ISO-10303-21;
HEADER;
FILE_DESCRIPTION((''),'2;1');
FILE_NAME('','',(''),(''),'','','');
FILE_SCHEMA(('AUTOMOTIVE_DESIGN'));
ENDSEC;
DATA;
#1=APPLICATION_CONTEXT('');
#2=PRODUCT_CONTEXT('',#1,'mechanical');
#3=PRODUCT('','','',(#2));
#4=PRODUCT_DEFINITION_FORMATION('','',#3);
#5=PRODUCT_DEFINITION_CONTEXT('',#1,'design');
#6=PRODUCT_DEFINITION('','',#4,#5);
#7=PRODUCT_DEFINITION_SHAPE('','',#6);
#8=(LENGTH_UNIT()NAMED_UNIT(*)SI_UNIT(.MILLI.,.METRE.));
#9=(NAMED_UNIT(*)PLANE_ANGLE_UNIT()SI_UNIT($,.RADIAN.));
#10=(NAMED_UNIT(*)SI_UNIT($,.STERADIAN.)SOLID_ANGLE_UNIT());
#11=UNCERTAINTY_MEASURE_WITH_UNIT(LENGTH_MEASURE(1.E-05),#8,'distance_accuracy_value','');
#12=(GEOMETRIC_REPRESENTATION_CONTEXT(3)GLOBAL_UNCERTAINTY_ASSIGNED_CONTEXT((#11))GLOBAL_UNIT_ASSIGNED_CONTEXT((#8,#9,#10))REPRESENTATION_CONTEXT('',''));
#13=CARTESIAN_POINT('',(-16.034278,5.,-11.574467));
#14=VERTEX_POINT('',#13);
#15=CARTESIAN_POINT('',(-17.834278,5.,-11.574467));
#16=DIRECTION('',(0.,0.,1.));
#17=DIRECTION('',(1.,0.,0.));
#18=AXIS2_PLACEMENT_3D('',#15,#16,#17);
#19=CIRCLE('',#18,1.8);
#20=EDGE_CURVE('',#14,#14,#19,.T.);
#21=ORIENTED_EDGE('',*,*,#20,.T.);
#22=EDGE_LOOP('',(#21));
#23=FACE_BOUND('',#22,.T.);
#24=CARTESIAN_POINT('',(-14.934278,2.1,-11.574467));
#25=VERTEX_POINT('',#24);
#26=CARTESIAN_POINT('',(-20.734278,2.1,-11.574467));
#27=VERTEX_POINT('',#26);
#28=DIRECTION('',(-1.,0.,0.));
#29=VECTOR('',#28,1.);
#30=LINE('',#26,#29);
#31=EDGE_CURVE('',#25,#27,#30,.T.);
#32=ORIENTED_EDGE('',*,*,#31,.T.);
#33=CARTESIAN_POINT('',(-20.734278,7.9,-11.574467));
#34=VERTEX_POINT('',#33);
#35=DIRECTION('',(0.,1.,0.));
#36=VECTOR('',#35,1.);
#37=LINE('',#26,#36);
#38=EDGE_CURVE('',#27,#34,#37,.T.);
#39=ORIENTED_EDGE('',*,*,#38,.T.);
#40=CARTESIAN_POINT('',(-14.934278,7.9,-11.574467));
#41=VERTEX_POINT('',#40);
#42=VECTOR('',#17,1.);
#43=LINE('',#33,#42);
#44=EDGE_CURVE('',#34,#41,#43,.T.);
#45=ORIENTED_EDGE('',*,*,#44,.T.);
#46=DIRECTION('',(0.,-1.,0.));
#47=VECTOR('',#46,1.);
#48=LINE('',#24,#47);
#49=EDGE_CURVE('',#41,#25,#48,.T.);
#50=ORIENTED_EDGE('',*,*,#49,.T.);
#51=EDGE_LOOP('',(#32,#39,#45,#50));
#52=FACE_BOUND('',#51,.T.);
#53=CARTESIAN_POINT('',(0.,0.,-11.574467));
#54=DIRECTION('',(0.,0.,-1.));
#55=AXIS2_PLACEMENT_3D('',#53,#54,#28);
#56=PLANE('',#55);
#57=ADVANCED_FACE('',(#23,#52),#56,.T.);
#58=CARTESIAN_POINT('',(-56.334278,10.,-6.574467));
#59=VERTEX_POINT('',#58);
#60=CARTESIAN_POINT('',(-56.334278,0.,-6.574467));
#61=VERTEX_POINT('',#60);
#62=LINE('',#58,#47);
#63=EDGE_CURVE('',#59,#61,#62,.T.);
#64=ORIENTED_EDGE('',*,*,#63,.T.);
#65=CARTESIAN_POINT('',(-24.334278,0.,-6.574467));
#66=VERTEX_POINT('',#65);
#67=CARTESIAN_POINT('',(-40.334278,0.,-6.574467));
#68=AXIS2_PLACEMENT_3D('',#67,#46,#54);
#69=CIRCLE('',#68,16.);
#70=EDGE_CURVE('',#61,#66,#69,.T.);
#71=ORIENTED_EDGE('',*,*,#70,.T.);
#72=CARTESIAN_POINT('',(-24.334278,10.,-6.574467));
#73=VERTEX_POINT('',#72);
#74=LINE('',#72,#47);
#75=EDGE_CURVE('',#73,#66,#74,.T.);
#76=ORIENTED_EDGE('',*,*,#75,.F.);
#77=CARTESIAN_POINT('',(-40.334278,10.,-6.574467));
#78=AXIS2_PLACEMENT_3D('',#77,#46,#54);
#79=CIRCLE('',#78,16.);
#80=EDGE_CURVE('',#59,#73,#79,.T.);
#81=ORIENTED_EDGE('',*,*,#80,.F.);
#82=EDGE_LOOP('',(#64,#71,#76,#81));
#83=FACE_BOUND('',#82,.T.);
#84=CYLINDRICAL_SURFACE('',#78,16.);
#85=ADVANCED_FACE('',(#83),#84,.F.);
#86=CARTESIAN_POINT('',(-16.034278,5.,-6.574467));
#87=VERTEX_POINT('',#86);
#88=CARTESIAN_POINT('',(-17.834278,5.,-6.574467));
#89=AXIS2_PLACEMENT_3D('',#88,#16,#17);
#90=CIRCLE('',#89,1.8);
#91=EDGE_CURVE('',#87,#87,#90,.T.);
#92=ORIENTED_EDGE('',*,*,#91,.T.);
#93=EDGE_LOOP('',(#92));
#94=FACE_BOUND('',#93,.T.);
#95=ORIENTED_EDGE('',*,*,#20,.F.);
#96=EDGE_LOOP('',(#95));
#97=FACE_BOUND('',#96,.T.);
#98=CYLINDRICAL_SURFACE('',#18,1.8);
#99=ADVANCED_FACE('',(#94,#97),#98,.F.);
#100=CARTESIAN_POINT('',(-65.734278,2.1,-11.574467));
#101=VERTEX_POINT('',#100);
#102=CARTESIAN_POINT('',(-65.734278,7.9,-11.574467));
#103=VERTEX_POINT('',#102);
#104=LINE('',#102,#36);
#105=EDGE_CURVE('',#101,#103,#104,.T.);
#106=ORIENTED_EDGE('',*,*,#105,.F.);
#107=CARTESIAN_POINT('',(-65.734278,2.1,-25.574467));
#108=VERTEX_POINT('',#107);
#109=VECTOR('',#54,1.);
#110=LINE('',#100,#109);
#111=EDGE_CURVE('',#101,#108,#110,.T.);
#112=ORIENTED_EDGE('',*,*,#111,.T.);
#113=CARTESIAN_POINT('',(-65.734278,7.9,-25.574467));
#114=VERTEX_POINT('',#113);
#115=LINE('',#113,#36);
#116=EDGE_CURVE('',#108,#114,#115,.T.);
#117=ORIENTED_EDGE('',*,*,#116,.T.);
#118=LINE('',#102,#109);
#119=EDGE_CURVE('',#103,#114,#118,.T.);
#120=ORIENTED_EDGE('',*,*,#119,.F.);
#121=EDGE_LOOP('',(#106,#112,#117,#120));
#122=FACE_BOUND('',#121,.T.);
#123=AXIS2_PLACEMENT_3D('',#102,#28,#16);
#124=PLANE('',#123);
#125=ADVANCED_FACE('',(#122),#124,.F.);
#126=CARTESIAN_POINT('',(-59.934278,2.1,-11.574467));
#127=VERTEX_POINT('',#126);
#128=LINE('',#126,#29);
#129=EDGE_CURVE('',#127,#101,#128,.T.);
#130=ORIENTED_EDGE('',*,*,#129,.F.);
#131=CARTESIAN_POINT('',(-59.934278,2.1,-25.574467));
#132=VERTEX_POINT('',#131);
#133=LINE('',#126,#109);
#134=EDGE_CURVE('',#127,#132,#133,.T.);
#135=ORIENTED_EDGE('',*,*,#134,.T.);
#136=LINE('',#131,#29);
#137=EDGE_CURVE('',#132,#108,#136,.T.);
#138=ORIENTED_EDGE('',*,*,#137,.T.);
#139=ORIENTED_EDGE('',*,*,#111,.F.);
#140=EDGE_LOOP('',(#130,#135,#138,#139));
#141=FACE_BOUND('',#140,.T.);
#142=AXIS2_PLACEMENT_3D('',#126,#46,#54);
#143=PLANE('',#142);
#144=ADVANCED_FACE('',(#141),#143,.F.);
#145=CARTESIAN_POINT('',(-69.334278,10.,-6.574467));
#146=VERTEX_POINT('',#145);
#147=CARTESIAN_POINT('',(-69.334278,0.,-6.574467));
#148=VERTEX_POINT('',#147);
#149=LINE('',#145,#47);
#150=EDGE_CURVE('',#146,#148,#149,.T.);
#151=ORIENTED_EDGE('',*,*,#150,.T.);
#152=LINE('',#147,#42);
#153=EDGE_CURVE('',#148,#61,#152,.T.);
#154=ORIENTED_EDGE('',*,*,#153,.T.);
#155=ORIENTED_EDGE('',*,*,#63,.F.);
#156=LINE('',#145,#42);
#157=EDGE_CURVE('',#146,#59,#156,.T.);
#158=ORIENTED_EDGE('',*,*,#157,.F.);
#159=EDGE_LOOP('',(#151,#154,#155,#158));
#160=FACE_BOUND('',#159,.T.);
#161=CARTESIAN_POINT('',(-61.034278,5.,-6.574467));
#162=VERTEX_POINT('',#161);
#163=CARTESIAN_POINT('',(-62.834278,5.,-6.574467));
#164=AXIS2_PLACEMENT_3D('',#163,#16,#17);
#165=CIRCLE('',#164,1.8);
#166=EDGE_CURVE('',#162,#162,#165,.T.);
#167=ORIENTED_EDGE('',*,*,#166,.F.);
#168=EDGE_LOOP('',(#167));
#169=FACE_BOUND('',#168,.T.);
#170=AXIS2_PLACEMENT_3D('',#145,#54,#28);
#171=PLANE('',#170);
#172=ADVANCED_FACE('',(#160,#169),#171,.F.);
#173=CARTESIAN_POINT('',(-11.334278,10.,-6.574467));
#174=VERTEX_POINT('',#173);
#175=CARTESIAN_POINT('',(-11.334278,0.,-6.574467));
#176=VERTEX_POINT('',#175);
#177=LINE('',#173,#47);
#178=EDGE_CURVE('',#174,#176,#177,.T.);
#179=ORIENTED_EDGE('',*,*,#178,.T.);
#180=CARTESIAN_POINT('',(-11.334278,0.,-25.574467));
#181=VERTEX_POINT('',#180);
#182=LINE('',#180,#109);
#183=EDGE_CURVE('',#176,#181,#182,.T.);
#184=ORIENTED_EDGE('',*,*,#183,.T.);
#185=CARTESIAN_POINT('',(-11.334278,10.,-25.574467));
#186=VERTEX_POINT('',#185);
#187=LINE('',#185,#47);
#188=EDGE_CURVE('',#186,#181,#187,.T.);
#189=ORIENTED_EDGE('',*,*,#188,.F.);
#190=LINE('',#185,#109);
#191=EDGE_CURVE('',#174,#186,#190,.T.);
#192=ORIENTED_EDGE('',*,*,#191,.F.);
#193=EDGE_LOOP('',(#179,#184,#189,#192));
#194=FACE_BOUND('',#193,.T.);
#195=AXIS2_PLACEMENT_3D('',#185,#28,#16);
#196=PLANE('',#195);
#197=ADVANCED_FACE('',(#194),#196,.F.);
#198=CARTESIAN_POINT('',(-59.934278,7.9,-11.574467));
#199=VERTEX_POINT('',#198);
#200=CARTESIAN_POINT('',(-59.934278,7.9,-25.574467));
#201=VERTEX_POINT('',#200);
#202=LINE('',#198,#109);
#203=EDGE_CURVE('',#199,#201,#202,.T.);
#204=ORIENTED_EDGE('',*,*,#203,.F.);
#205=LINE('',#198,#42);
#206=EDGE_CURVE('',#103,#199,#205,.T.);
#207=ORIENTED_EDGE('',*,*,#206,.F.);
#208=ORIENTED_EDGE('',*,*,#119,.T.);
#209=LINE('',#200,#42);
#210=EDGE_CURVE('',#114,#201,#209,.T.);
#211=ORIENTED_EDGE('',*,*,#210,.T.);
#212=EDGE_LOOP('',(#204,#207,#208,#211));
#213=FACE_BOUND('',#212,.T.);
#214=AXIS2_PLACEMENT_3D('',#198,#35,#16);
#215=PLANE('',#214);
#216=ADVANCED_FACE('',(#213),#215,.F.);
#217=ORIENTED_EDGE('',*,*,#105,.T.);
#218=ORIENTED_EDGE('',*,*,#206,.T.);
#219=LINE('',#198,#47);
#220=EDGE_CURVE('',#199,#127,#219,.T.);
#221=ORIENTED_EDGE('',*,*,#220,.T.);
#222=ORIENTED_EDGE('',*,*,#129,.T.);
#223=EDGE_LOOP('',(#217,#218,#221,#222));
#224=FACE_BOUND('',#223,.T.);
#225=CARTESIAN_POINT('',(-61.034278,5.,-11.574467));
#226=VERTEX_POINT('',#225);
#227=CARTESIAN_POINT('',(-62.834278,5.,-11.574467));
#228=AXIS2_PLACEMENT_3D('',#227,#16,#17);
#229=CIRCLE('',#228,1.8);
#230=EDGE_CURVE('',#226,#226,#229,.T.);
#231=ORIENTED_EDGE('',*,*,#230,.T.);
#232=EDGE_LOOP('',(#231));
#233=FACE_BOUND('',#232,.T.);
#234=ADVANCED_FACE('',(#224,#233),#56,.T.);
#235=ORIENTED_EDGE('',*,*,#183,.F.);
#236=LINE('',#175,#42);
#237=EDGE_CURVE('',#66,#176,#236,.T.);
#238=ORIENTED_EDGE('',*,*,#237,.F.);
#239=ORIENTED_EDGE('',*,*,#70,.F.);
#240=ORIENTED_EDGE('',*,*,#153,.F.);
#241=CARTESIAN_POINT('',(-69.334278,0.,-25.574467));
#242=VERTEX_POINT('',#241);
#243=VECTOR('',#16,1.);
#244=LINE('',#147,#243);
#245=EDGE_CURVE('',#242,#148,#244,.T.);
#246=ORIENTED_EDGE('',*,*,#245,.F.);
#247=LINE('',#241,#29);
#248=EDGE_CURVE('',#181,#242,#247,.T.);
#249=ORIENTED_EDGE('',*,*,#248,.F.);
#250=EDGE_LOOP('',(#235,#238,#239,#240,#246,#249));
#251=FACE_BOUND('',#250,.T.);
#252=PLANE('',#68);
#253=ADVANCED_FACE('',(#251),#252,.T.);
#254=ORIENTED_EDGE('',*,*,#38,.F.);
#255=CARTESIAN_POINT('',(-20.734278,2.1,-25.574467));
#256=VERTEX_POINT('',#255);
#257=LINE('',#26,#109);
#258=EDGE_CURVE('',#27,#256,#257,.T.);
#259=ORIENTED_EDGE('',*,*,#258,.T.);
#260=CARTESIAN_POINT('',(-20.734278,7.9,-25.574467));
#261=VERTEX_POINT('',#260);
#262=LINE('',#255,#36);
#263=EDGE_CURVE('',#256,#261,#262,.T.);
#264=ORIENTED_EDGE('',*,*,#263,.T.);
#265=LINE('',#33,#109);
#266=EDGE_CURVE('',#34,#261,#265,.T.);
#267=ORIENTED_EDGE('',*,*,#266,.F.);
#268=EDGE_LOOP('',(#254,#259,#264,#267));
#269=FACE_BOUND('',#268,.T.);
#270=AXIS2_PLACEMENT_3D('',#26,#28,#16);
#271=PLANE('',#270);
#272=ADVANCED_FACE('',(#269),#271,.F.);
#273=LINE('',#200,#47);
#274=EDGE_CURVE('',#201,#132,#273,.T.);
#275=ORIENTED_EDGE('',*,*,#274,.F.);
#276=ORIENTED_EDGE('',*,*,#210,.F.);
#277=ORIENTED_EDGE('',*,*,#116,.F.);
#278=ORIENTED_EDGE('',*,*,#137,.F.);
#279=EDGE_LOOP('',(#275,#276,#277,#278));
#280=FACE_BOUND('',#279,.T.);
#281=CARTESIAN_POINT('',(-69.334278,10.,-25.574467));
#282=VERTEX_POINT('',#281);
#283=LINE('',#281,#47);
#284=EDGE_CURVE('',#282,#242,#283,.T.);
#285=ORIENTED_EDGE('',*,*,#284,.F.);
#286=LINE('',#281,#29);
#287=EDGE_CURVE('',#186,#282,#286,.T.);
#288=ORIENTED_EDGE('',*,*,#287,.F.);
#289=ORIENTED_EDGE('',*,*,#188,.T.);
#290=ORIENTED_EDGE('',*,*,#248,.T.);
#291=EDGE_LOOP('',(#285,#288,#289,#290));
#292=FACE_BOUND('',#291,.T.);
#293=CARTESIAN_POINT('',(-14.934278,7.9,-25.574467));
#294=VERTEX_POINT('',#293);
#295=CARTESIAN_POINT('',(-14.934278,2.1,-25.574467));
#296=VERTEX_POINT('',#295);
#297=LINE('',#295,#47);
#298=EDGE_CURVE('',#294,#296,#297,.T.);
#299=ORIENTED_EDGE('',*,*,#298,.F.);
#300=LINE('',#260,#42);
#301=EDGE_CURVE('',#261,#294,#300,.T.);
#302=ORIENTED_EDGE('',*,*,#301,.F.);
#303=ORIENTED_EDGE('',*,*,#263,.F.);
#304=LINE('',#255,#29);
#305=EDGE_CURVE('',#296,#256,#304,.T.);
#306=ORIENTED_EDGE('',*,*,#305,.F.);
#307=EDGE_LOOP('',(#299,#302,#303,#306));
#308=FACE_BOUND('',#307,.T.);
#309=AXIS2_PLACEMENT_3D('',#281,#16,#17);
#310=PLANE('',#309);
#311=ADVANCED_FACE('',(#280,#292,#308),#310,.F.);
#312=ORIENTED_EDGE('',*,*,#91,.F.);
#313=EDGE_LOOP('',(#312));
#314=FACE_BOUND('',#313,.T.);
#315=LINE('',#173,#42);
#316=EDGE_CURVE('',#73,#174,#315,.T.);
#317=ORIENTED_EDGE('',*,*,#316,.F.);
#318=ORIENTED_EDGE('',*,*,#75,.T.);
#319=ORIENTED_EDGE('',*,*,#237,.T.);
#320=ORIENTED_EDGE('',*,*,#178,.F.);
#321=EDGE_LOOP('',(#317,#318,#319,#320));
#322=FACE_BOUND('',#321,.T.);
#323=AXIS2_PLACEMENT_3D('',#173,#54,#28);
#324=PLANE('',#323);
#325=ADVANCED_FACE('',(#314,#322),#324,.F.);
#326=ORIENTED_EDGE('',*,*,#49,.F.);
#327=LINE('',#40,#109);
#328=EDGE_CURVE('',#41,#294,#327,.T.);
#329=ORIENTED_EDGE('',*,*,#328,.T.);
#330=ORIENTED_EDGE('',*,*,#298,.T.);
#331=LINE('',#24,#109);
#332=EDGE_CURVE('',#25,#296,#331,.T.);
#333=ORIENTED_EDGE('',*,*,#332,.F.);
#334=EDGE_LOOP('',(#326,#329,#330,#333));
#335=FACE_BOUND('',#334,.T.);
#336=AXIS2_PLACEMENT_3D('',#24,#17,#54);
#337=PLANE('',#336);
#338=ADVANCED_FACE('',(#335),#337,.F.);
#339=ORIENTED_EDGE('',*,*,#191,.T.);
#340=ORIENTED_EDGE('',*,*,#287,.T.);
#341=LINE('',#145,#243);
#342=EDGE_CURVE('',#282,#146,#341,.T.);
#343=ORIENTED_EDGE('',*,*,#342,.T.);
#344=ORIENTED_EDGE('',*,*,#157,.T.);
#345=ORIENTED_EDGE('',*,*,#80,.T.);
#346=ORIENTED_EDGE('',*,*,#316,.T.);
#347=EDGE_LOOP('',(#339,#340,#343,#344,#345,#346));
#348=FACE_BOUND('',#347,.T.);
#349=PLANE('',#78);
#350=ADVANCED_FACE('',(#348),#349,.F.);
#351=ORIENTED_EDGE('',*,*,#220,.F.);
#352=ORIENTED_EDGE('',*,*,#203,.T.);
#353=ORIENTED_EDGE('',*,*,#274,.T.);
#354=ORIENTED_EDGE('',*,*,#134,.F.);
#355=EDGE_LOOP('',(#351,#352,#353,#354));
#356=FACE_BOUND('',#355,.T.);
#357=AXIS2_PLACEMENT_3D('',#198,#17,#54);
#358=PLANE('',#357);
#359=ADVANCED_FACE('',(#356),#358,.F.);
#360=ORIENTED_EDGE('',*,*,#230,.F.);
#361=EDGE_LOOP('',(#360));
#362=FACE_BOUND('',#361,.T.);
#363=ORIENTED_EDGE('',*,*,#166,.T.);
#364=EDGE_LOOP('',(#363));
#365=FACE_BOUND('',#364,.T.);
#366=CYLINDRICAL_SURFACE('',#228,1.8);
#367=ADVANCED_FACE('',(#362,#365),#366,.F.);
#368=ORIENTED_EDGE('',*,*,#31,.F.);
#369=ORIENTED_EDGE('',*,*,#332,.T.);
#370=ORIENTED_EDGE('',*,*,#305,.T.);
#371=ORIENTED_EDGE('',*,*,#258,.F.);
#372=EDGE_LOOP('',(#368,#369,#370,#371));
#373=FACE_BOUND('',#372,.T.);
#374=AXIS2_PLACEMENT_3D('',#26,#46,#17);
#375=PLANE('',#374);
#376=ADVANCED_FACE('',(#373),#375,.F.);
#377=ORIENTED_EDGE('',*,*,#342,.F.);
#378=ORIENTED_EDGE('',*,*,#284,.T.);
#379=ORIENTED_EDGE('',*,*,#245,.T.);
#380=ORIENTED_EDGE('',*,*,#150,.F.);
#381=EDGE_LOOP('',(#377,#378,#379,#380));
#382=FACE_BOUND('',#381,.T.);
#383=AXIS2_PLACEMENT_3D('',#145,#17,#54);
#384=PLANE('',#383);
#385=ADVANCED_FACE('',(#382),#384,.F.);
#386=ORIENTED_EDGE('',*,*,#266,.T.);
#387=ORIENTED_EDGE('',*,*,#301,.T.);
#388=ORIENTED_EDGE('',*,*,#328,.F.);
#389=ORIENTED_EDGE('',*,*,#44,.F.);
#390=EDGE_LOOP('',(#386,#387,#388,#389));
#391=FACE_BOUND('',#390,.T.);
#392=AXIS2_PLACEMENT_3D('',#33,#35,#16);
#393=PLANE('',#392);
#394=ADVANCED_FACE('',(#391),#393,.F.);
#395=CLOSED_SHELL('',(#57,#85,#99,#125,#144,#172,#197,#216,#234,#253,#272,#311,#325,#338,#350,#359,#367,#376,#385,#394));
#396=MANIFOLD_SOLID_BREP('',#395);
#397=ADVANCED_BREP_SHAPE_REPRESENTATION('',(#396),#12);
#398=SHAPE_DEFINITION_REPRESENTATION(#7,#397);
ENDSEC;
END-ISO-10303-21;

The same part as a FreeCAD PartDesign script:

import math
import FreeCAD as App
import Part
import Sketcher

V = App.Vector

doc = App.newDocument("Part")
body = doc.addObject("PartDesign::Body", "Body")

sketch1 = body.newObject("Sketcher::SketchObject", "Sketch")
sketch1.AttachmentSupport = (doc.getObject("XZ_Plane"), [""])
sketch1.MapMode = "FlatFace"
sketch1.addGeometry(Part.LineSegment(V(-69, -7, 0), V(-56, -7, 0)), False)
sketch1.addGeometry(Part.ArcOfCircle(Part.Circle(V(-40, -7, 0), V(0, 0, 1), 16), math.radians(180), math.radians(360)), False)
sketch1.addGeometry(Part.LineSegment(V(-24, -7, 0), V(-11, -7, 0)), False)
sketch1.addGeometry(Part.LineSegment(V(-11, -7, 0), V(-11, -26, 0)), False)
sketch1.addGeometry(Part.LineSegment(V(-11, -26, 0), V(-69, -26, 0)), False)
sketch1.addGeometry(Part.LineSegment(V(-69, -26, 0), V(-69, -7, 0)), False)
sketch1.addConstraint(Sketcher.Constraint("Coincident", 0, 2, 1, 1))
sketch1.addConstraint(Sketcher.Constraint("Coincident", 1, 2, 2, 1))
sketch1.addConstraint(Sketcher.Constraint("Coincident", 2, 2, 3, 1))
sketch1.addConstraint(Sketcher.Constraint("Coincident", 3, 2, 4, 1))
sketch1.addConstraint(Sketcher.Constraint("Coincident", 4, 2, 5, 1))
sketch1.addConstraint(Sketcher.Constraint("Coincident", 5, 2, 0, 1))
sketch1.addConstraint(Sketcher.Constraint("Horizontal", 0))
sketch1.addConstraint(Sketcher.Constraint("Horizontal", 2))
sketch1.addConstraint(Sketcher.Constraint("Vertical", 3))
sketch1.addConstraint(Sketcher.Constraint("Horizontal", 4))
sketch1.addConstraint(Sketcher.Constraint("Vertical", 5))
sketch1.addConstraint(Sketcher.Constraint("Horizontal", 1, 3, 0, 2))
sketch1.addConstraint(Sketcher.Constraint("Horizontal", 0, 2, 1, 2))
sketch1.addConstraint(Sketcher.Constraint("Equal", 0, 2))
sketch1.addConstraint(Sketcher.Constraint("Radius", 1, 16.0))
sketch1.addConstraint(Sketcher.Constraint("DistanceX", 0, 1, 0, 2, 13.0))
sketch1.addConstraint(Sketcher.Constraint("DistanceY", 3, 2, 3, 1, 19.0))
sketch1.addConstraint(Sketcher.Constraint("DistanceX", 1, 3, -1, 1, 40.334278))
sketch1.addConstraint(Sketcher.Constraint("DistanceY", 1, 3, -1, 1, 6.574467))
pad1 = body.newObject("PartDesign::Pad", "Pad")
pad1.Profile = sketch1
pad1.Length = 10
pad1.Reversed = True

sketch2 = body.newObject("Sketcher::SketchObject", "Sketch001")
sketch2.AttachmentSupport = (doc.getObject("XY_Plane"), [""])
sketch2.MapMode = "FlatFace"
sketch2.AttachmentOffset = App.Placement(V(0, 0, -6.574467), App.Rotation())
sketch2.addGeometry(Part.Circle(V(-62.8, 5, 0), V(0, 0, 1), 1.8), False)
sketch2.addGeometry(Part.Circle(V(-17.8, 5, 0), V(0, 0, 1), 1.8), False)
sketch2.addConstraint(Sketcher.Constraint("Equal", 0, 1))
sketch2.addConstraint(Sketcher.Constraint("Horizontal", 0, 3, 1, 3))
sketch2.addConstraint(Sketcher.Constraint("Diameter", 0, 3.6))
sketch2.addConstraint(Sketcher.Constraint("DistanceY", -1, 1, 0, 3, 5.0))
sketch2.addConstraint(Sketcher.Constraint("DistanceX", 0, 3, 1, 3, 45.0))
sketch2.addConstraint(Sketcher.Constraint("DistanceX", 0, 3, -1, 1, 62.834278))
pocket1 = body.newObject("PartDesign::Pocket", "Pocket")
pocket1.Profile = sketch2
pocket1.Length = 5

sketch3 = body.newObject("Sketcher::SketchObject", "Sketch002")
sketch3.AttachmentSupport = (doc.getObject("XY_Plane"), [""])
sketch3.MapMode = "FlatFace"
sketch3.AttachmentOffset = App.Placement(V(0, 0, -25.574467), App.Rotation())
sketch3.addGeometry(Part.LineSegment(V(-15, 8, 0), V(-15, 2, 0)), False)
sketch3.addGeometry(Part.LineSegment(V(-15, 2, 0), V(-21, 2, 0)), False)
sketch3.addGeometry(Part.LineSegment(V(-21, 2, 0), V(-21, 8, 0)), False)
sketch3.addGeometry(Part.LineSegment(V(-21, 8, 0), V(-15, 8, 0)), False)
sketch3.addGeometry(Part.LineSegment(V(-60, 8, 0), V(-60, 2, 0)), False)
sketch3.addGeometry(Part.LineSegment(V(-60, 2, 0), V(-66, 2, 0)), False)
sketch3.addGeometry(Part.LineSegment(V(-66, 2, 0), V(-66, 8, 0)), False)
sketch3.addGeometry(Part.LineSegment(V(-66, 8, 0), V(-60, 8, 0)), False)
sketch3.addConstraint(Sketcher.Constraint("Coincident", 0, 2, 1, 1))
sketch3.addConstraint(Sketcher.Constraint("Coincident", 1, 2, 2, 1))
sketch3.addConstraint(Sketcher.Constraint("Coincident", 2, 2, 3, 1))
sketch3.addConstraint(Sketcher.Constraint("Coincident", 3, 2, 0, 1))
sketch3.addConstraint(Sketcher.Constraint("Coincident", 4, 2, 5, 1))
sketch3.addConstraint(Sketcher.Constraint("Coincident", 5, 2, 6, 1))
sketch3.addConstraint(Sketcher.Constraint("Coincident", 6, 2, 7, 1))
sketch3.addConstraint(Sketcher.Constraint("Coincident", 7, 2, 4, 1))
sketch3.addConstraint(Sketcher.Constraint("Vertical", 0))
sketch3.addConstraint(Sketcher.Constraint("Horizontal", 1))
sketch3.addConstraint(Sketcher.Constraint("Vertical", 2))
sketch3.addConstraint(Sketcher.Constraint("Horizontal", 3))
sketch3.addConstraint(Sketcher.Constraint("Vertical", 4))
sketch3.addConstraint(Sketcher.Constraint("Horizontal", 5))
sketch3.addConstraint(Sketcher.Constraint("Vertical", 6))
sketch3.addConstraint(Sketcher.Constraint("Horizontal", 7))
sketch3.addConstraint(Sketcher.Constraint("Horizontal", 1, 2, 4, 2))
sketch3.addConstraint(Sketcher.Constraint("Horizontal", 3, 2, 6, 2))
sketch3.addConstraint(Sketcher.Constraint("Equal", 3, 5))
sketch3.addConstraint(Sketcher.Constraint("Equal", 7, 0))
sketch3.addConstraint(Sketcher.Constraint("DistanceX", 1, 2, 1, 1, 5.8))
sketch3.addConstraint(Sketcher.Constraint("DistanceX", 4, 2, 0, 2, 45.0))
sketch3.addConstraint(Sketcher.Constraint("DistanceY", -1, 1, 0, 2, 2.1))
sketch3.addConstraint(Sketcher.Constraint("DistanceX", 0, 2, -1, 1, 14.934278))
pocket2 = body.newObject("PartDesign::Pocket", "Pocket001")
pocket2.Profile = sketch3
pocket2.Length = 14
pocket2.Reversed = True

doc.recompute()
